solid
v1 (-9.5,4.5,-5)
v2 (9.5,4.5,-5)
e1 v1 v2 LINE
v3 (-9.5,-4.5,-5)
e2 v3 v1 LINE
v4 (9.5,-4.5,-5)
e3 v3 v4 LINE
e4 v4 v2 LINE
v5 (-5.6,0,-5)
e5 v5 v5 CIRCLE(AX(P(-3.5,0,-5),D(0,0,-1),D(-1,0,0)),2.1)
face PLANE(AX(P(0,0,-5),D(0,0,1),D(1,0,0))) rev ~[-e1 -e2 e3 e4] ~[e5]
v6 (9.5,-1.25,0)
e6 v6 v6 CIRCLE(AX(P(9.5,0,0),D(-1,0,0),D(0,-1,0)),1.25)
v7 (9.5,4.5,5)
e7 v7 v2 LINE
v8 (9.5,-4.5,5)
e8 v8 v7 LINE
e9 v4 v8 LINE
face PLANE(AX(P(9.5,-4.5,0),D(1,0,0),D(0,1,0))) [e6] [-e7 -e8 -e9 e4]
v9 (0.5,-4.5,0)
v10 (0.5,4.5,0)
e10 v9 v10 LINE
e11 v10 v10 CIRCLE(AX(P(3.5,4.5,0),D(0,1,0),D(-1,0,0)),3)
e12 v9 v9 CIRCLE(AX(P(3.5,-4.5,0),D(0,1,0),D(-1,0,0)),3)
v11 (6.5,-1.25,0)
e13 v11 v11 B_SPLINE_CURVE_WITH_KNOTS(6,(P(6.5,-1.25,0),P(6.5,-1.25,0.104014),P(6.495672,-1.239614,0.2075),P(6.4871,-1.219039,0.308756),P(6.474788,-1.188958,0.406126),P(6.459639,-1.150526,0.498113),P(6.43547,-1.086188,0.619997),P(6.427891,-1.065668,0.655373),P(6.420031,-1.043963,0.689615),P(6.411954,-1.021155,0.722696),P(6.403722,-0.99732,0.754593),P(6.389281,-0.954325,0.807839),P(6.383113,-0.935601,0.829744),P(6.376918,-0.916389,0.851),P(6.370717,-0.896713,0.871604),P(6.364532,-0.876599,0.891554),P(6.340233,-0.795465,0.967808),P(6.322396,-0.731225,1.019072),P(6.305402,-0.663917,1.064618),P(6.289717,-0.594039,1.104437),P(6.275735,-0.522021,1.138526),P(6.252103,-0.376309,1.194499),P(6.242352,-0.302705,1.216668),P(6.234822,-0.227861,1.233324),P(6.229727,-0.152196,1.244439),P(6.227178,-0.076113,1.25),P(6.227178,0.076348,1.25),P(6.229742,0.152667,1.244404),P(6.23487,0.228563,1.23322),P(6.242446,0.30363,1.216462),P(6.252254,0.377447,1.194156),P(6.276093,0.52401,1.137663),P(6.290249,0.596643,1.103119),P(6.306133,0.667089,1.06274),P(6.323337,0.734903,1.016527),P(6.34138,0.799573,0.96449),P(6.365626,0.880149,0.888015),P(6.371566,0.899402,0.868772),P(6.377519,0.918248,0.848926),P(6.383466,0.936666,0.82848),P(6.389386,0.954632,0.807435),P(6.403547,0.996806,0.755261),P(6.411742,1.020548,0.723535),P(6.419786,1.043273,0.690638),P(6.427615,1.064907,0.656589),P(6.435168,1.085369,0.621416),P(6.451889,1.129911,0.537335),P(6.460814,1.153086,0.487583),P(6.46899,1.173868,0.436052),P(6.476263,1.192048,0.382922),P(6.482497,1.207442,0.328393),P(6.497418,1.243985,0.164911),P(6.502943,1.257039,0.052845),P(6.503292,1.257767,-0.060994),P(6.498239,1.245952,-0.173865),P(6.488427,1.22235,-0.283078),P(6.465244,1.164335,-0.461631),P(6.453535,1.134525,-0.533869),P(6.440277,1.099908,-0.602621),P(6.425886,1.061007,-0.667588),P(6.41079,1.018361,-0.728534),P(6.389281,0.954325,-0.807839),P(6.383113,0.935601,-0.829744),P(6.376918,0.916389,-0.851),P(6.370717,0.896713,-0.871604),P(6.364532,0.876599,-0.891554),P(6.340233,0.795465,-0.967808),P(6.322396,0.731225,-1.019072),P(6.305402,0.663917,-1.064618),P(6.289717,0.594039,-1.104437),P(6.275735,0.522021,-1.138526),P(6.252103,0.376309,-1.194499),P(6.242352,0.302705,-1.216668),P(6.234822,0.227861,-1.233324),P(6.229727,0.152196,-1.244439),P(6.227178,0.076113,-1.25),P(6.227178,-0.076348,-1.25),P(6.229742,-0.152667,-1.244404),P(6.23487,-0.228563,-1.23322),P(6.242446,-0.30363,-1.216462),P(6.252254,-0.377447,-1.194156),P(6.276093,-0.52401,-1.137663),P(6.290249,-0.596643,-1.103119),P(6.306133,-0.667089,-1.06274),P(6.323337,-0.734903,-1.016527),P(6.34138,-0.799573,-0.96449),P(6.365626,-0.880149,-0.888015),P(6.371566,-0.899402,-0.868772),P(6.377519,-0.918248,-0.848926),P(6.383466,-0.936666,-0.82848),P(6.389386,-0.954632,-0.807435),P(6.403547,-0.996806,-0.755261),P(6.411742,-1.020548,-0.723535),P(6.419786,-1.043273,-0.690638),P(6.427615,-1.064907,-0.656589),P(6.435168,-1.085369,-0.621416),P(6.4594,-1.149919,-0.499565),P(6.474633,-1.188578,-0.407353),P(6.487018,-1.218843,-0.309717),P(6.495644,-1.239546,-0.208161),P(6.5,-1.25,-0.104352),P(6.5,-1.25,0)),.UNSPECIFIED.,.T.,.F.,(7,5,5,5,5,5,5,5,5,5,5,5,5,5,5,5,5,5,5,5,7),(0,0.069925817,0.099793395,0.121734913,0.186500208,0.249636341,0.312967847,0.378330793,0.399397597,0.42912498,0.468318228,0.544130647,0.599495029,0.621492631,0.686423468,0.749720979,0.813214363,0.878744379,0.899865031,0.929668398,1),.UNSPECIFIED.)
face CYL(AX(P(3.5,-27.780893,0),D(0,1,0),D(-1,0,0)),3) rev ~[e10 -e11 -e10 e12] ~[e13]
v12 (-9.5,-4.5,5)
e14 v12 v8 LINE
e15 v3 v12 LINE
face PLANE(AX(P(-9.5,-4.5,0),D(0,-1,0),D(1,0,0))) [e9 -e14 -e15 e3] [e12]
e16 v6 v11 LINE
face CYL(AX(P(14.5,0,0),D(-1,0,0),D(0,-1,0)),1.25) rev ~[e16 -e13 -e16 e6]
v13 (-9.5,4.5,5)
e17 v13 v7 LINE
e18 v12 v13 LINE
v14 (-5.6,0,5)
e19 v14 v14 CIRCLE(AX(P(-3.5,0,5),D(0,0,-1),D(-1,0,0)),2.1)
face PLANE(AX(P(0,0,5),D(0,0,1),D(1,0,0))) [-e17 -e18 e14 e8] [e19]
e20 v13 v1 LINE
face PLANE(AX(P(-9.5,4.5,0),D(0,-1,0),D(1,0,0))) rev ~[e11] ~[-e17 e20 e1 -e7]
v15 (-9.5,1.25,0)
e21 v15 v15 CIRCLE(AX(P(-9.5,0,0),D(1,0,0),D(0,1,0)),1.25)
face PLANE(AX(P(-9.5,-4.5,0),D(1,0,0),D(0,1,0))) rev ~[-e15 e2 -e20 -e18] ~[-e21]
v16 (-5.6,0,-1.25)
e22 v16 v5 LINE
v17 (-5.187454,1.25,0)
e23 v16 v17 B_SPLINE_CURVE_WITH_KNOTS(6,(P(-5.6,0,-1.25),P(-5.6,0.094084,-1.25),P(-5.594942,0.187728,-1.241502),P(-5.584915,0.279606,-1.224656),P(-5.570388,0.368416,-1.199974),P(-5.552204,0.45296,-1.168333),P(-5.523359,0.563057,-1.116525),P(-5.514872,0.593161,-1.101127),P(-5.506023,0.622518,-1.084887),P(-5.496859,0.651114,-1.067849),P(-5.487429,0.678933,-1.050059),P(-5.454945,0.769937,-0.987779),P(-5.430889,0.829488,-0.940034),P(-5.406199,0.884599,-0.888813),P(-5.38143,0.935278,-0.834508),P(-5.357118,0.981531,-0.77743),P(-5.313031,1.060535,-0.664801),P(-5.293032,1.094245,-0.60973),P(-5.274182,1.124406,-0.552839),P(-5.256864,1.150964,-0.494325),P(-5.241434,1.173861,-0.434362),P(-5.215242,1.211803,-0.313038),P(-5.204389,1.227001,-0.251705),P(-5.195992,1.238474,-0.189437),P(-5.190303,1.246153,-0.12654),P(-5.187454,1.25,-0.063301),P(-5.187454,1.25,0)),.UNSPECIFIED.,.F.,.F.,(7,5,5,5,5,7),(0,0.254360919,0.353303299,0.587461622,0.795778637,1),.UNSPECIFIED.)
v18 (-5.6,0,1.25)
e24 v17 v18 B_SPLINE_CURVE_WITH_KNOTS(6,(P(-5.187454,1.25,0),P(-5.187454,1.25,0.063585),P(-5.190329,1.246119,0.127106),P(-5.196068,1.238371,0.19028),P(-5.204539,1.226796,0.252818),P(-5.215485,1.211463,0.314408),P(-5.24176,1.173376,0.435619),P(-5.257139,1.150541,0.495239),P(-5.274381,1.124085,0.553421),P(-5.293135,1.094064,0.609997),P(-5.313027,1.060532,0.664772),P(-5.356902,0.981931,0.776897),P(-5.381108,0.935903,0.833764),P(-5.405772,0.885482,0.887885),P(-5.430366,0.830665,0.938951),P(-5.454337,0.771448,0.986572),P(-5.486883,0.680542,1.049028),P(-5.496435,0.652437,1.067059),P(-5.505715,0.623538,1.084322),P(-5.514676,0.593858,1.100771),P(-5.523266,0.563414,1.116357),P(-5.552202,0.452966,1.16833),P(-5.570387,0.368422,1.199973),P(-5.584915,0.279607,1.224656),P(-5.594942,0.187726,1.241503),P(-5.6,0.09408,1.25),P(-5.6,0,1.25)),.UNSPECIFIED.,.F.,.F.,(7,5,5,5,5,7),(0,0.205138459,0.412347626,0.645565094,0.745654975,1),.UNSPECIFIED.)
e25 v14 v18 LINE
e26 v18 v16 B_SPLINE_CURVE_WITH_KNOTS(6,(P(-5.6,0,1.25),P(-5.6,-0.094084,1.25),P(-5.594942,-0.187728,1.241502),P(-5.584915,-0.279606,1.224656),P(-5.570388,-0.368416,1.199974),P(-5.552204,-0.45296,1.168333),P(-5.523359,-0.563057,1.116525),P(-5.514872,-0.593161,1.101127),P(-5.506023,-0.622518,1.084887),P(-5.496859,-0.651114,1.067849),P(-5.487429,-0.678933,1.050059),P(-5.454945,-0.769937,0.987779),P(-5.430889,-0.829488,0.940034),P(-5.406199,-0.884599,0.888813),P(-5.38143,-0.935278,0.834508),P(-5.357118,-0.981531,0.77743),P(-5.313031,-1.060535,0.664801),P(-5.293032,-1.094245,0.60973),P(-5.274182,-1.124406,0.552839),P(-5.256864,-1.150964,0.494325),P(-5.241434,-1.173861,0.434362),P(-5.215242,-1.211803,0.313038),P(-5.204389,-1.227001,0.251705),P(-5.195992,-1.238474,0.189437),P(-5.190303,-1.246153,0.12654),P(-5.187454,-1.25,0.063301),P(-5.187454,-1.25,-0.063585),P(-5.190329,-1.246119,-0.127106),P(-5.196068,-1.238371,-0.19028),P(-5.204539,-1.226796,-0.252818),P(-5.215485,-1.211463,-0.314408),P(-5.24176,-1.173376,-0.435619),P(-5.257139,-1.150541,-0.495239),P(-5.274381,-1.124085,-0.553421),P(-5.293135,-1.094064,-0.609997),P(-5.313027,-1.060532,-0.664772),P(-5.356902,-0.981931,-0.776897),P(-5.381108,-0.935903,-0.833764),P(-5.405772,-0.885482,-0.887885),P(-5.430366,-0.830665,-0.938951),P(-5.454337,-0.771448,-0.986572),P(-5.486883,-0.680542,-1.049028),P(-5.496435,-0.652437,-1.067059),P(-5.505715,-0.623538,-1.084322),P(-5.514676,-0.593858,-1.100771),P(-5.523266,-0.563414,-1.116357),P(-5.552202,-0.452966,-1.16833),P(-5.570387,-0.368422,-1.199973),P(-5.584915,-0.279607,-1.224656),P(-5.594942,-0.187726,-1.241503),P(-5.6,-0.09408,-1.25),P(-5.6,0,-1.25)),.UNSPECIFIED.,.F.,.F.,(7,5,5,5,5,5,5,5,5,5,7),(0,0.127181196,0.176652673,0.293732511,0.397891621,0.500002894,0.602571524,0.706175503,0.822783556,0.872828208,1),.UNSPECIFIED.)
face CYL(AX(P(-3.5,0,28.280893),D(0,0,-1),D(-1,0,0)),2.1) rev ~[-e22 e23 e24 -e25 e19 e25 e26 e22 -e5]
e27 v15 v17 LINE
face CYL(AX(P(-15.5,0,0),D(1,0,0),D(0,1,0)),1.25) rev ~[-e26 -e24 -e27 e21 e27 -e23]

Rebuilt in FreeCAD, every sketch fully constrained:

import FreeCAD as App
import Part
import Sketcher
from FreeCAD import Vector
Q = App.Units.Quantity

doc = App.newDocument("Part")
body = doc.addObject("PartDesign::Body", "Body")

# Sketch on XY plane
sketch1 = body.newObject("Sketcher::SketchObject", "Sketch")
sketch1.AttachmentSupport = (doc.getObject("XY_Plane"), [""])
sketch1.MapMode = "FlatFace"
sketch1.addGeometry(Part.LineSegment(Vector(-10, 4, 0), Vector(-10, -4, 0)), False)
sketch1.addGeometry(Part.LineSegment(Vector(-10, -4, 0), Vector(10, -4, 0)), False)
sketch1.addGeometry(Part.LineSegment(Vector(10, -4, 0), Vector(10, 4, 0)), False)
sketch1.addGeometry(Part.LineSegment(Vector(10, 4, 0), Vector(-10, 4, 0)), False)
sketch1.addConstraint(Sketcher.Constraint("Coincident", 0, 2, 1, 1))
sketch1.addConstraint(Sketcher.Constraint("Coincident", 1, 2, 2, 1))
sketch1.addConstraint(Sketcher.Constraint("Coincident", 2, 2, 3, 1))
sketch1.addConstraint(Sketcher.Constraint("Coincident", 3, 2, 0, 1))
sketch1.addConstraint(Sketcher.Constraint("Vertical", 0))
sketch1.addConstraint(Sketcher.Constraint("Horizontal", 1))
sketch1.addConstraint(Sketcher.Constraint("Vertical", 2))
sketch1.addConstraint(Sketcher.Constraint("Horizontal", 3))
sketch1.addConstraint(Sketcher.Constraint("Symmetric", 0, 2, 2, 2, -1, 1))
sketch1.addConstraint(Sketcher.Constraint("DistanceX", 1, 1, 1, 2, Q("19 mm")))
sketch1.addConstraint(Sketcher.Constraint("DistanceY", 0, 2, 0, 1, Q("9 mm")))
pad1 = body.newObject("PartDesign::Pad", "Pad")
pad1.Profile = sketch1
pad1.Length = 10
pad1.Midplane = True

# Sketch on XY plane
sketch2 = body.newObject("Sketcher::SketchObject", "Sketch001")
sketch2.AttachmentSupport = (doc.getObject("XY_Plane"), [""])
sketch2.MapMode = "FlatFace"
sketch2.AttachmentOffset = App.Placement(Vector(0, 0, 5), App.Rotation())
sketch2.addGeometry(Part.Circle(Vector(-3.5, 0, 0), Vector(0, 0, 1), 2.1), False)
sketch2.addConstraint(Sketcher.Constraint("PointOnObject", 0, 3, -1))
sketch2.addConstraint(Sketcher.Constraint("Diameter", 0, Q("4.2 mm")))
sketch2.addConstraint(Sketcher.Constraint("DistanceX", 0, 3, -1, 1, Q("3.5 mm")))
doc.recompute()
hole = body.newObject("PartDesign::Hole", "Hole")
hole.Profile = sketch2
hole.ThreadType = "None"
hole.Diameter = 4.2
hole.DepthType = "ThroughAll"

# Sketch on XZ plane
sketch3 = body.newObject("Sketcher::SketchObject", "Sketch002")
sketch3.AttachmentSupport = (doc.getObject("XZ_Plane"), [""])
sketch3.MapMode = "FlatFace"
sketch3.AttachmentOffset = App.Placement(Vector(0, 0, 4.5), App.Rotation())
sketch3.addGeometry(Part.Circle(Vector(3.5, 0, 0), Vector(0, 0, 1), 3), False)
sketch3.addConstraint(Sketcher.Constraint("PointOnObject", 0, 3, -1))
sketch3.addConstraint(Sketcher.Constraint("Diameter", 0, Q("6 mm")))
sketch3.addConstraint(Sketcher.Constraint("DistanceX", -1, 1, 0, 3, Q("3.5 mm")))
doc.recompute()
hole2 = body.newObject("PartDesign::Hole", "Hole001")
hole2.Profile = sketch3
hole2.ThreadType = "None"
hole2.Diameter = 6
hole2.DepthType = "ThroughAll"

# Sketch on YZ plane
sketch4 = body.newObject("Sketcher::SketchObject", "Sketch003")
sketch4.AttachmentSupport = (doc.getObject("YZ_Plane"), [""])
sketch4.MapMode = "FlatFace"
sketch4.AttachmentOffset = App.Placement(Vector(0, 0, 9.5), App.Rotation())
sketch4.addGeometry(Part.Circle(Vector(0, 0, 0), Vector(0, 0, 1), 1.2), False)
sketch4.addConstraint(Sketcher.Constraint("Coincident", 0, 3, -1, 1))
sketch4.addConstraint(Sketcher.Constraint("Diameter", 0, Q("2.5 mm")))
doc.recompute()
hole3 = body.newObject("PartDesign::Hole", "Hole002")
hole3.Profile = sketch4
hole3.ThreadType = "None"
hole3.Diameter = 2.5
hole3.DepthType = "Dimension"
hole3.Depth = 5
hole3.DrillPoint = "Angled"
hole3.DrillPointAngle = 118

# Sketch on YZ plane
sketch5 = body.newObject("Sketcher::SketchObject", "Sketch004")
sketch5.AttachmentSupport = (doc.getObject("YZ_Plane"), [""])
sketch5.MapMode = "FlatFace"
sketch5.AttachmentOffset = App.Placement(Vector(0, 0, -9.5), App.Rotation())
sketch5.addGeometry(Part.Circle(Vector(0, 0, 0), Vector(0, 0, 1), 1.2), False)
sketch5.addConstraint(Sketcher.Constraint("Coincident", 0, 3, -1, 1))
sketch5.addConstraint(Sketcher.Constraint("Diameter", 0, Q("2.5 mm")))
doc.recompute()
hole4 = body.newObject("PartDesign::Hole", "Hole003")
hole4.Profile = sketch5
hole4.ThreadType = "None"
hole4.Diameter = 2.5
hole4.DepthType = "Dimension"
hole4.Depth = 6
hole4.DrillPoint = "Angled"
hole4.DrillPointAngle = 118
hole4.Reversed = True

doc.recompute()
